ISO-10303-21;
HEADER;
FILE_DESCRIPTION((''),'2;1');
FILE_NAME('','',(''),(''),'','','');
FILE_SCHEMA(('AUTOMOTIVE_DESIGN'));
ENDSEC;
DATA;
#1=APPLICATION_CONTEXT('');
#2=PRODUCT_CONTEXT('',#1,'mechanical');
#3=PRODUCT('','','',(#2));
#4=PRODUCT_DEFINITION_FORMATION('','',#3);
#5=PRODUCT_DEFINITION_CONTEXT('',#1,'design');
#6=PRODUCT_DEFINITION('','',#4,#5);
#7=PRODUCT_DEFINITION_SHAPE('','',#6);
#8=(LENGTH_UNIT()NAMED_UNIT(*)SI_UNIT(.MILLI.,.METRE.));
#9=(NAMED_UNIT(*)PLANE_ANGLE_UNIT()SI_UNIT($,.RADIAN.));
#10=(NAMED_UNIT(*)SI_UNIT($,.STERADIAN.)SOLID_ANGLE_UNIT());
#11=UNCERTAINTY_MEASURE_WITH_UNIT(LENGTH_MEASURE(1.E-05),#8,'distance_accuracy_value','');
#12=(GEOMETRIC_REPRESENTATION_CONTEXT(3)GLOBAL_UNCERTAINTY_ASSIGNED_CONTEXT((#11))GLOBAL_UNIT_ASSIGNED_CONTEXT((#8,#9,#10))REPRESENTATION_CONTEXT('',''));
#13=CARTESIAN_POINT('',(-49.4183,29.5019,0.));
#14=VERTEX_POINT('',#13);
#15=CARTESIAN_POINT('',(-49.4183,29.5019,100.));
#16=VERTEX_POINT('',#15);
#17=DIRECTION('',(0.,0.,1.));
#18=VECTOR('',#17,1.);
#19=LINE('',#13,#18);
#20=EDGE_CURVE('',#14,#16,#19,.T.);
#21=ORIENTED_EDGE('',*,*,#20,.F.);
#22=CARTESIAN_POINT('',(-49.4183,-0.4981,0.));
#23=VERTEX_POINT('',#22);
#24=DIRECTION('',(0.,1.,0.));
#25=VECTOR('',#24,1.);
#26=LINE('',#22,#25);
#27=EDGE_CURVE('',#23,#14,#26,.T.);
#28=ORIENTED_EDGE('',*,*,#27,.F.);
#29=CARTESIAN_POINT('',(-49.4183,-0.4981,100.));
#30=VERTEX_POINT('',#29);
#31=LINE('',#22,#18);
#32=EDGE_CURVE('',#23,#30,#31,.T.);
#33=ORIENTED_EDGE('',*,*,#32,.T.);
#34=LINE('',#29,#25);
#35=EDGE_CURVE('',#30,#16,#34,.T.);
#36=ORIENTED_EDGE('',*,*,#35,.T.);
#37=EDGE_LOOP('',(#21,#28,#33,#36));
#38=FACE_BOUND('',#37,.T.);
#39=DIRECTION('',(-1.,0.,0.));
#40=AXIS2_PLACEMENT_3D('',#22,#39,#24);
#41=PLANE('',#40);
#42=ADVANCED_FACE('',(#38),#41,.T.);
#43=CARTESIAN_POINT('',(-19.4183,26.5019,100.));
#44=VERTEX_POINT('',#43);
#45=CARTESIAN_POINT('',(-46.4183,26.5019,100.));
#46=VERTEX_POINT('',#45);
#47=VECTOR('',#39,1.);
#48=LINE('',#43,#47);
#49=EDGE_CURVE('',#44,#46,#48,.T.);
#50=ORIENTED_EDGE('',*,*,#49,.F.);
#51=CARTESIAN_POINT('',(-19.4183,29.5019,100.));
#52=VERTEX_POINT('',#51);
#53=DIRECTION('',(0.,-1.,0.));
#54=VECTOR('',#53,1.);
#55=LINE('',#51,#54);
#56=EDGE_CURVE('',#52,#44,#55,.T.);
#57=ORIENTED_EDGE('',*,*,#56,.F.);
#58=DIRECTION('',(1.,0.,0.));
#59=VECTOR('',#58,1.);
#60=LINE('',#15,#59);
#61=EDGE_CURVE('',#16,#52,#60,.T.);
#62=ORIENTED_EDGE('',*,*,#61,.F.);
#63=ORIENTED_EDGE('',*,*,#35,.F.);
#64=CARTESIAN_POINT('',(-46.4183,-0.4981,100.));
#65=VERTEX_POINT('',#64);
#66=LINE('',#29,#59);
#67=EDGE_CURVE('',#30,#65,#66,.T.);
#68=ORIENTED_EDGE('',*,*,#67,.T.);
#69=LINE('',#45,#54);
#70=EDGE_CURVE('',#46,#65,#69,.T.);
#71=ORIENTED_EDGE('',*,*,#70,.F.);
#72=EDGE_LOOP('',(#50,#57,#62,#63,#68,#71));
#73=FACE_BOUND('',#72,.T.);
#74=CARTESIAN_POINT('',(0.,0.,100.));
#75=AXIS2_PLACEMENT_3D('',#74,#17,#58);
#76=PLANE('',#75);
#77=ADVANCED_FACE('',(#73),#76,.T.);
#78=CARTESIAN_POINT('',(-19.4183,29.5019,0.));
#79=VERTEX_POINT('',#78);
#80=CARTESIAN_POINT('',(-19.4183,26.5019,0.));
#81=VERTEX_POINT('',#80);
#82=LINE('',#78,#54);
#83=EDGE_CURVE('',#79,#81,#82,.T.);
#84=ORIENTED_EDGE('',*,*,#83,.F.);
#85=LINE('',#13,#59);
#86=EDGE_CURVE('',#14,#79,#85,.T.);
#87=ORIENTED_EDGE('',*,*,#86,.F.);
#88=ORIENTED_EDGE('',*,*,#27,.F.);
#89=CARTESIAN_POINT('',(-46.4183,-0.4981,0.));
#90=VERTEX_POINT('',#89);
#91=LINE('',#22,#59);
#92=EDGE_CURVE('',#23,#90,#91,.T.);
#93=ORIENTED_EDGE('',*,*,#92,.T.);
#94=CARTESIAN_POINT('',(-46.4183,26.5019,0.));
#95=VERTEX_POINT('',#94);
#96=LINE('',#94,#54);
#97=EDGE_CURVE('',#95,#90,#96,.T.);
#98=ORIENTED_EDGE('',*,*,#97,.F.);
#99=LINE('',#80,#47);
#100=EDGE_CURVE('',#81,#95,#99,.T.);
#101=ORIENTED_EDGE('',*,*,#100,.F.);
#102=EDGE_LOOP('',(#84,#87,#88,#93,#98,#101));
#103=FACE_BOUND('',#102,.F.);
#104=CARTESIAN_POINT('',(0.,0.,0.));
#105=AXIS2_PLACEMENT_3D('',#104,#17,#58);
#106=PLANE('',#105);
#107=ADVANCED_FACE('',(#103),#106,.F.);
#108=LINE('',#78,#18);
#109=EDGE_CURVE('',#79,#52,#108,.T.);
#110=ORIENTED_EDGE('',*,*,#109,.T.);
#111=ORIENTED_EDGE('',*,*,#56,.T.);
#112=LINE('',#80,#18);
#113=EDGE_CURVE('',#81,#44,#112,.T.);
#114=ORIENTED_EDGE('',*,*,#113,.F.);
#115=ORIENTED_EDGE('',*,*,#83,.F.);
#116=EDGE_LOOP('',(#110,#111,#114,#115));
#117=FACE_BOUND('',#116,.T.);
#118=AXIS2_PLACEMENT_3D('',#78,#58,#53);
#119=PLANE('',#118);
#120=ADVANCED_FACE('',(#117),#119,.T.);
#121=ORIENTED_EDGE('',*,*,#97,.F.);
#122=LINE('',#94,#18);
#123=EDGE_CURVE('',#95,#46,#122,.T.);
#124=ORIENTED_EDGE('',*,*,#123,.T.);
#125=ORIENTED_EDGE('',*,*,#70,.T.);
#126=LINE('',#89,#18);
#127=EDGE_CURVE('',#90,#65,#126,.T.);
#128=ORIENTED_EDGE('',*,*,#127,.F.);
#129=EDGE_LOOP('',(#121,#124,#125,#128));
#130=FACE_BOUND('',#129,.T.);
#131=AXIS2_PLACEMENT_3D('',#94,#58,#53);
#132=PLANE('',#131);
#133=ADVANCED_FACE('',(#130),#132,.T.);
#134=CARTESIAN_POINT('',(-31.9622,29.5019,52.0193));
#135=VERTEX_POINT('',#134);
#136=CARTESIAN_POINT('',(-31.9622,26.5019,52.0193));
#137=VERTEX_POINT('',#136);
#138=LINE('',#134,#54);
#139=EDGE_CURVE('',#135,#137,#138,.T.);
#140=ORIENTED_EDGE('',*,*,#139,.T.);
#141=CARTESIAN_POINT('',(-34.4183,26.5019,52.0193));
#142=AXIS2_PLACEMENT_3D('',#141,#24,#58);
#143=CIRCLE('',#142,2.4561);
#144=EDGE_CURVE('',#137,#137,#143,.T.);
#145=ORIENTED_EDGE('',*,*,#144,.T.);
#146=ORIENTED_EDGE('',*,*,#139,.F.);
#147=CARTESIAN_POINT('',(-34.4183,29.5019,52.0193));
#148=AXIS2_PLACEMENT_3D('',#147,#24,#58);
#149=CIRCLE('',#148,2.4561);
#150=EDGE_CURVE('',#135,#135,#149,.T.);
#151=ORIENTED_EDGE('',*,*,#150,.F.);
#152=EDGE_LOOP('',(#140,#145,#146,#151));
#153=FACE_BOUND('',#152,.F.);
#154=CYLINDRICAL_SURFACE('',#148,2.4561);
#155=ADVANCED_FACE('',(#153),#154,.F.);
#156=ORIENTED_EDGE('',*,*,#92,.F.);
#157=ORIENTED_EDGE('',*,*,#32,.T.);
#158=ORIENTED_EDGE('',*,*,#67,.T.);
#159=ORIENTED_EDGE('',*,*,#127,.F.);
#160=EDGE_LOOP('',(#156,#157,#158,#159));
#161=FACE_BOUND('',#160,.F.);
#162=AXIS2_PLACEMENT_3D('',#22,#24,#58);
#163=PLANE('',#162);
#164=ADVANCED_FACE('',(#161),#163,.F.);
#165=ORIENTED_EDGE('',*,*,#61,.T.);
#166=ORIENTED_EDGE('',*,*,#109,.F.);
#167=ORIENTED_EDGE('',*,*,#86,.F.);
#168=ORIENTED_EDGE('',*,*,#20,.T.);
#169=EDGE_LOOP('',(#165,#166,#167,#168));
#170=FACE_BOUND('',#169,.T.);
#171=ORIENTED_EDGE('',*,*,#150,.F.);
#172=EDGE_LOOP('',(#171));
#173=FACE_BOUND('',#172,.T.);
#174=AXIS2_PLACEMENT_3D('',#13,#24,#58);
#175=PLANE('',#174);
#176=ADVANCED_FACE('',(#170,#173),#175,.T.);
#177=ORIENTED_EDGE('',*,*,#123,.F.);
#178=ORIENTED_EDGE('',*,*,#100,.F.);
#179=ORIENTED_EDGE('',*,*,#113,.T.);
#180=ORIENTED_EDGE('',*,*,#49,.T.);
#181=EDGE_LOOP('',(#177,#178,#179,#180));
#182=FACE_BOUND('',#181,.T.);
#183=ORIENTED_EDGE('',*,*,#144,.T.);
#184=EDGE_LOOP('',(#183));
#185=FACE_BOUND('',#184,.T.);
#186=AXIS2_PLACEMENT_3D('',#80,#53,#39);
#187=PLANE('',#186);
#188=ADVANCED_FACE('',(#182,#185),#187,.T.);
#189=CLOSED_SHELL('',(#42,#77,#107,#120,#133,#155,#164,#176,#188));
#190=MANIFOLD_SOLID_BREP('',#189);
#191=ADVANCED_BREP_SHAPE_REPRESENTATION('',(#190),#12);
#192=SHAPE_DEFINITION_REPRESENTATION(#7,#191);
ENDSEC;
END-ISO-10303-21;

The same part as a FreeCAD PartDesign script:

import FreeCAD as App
import Part
import Sketcher
from FreeCAD import Vector
Q = App.Units.Quantity


def add_polygon(sketch, points):
    """Adds a closed chain of lines whose ends are joined by coincident constraints."""
    first, n = sketch.GeometryCount, len(points)
    for a, b in zip(points, points[1:] + points[:1]):
        sketch.addGeometry(Part.LineSegment(App.Vector(*a, 0), App.Vector(*b, 0)), False)
    for i in range(n):
        sketch.addConstraint(Sketcher.Constraint("Coincident", first + i, 2, first + (i + 1) % n, 1))

doc = App.newDocument("Part")
body = doc.addObject("PartDesign::Body", "Body")

# Sketch on XY plane
sketch1 = body.newObject("Sketcher::SketchObject", "Sketch")
sketch1.AttachmentSupport = (doc.getObject("XY_Plane"), [""])
sketch1.MapMode = "FlatFace"
add_polygon(sketch1, [(-49.4, 29.5), (-49.4, -0.5), (-46.4, -0.5), (-46.4, 26.5), (-19.4, 26.5), (-19.4, 29.5)])  # lines 0-5
sketch1.addConstraint(Sketcher.Constraint("Vertical", 0))
sketch1.addConstraint(Sketcher.Constraint("Horizontal", 1))
sketch1.addConstraint(Sketcher.Constraint("Vertical", 2))
sketch1.addConstraint(Sketcher.Constraint("Horizontal", 3))
sketch1.addConstraint(Sketcher.Constraint("Vertical", 4))
sketch1.addConstraint(Sketcher.Constraint("Horizontal", 5))
sketch1.addConstraint(Sketcher.Constraint("Equal", 5, 0))
sketch1.addConstraint(Sketcher.Constraint("Equal", 3, 2))
sketch1.addConstraint(Sketcher.Constraint("DistanceX", 3, 1, 3, 2, Q("1.063 in")))
sketch1.addConstraint(Sketcher.Constraint("DistanceX", 1, 1, 1, 2, Q("0.1181 in")))
sketch1.addConstraint(Sketcher.Constraint("DistanceX", 0, 2, -1, 1, Q("1.9456 in")))
sketch1.addConstraint(Sketcher.Constraint("DistanceY", 0, 2, -1, 1, Q("0.0196 in")))
pad1 = body.newObject("PartDesign::Pad", "Pad")
pad1.Profile = sketch1
pad1.Length = Q("3.9370079 in")

# Sketch on XZ plane
sketch2 = body.newObject("Sketcher::SketchObject", "Sketch001")
sketch2.AttachmentSupport = (doc.getObject("XZ_Plane"), [""])
sketch2.MapMode = "FlatFace"
sketch2.AttachmentOffset = App.Placement(Vector(0, 0, -1.1614921 * 25.4), App.Rotation())
sketch2.addGeometry(Part.Circle(Vector(-34.4, 52, 0), Vector(0, 0, 1), 2.5), False)
sketch2.addConstraint(Sketcher.Constraint("Diameter", 0, Q("0.1934 in")))
sketch2.addConstraint(Sketcher.Constraint("DistanceY", -1, 1, 0, 3, Q("2.048 in")))
sketch2.addConstraint(Sketcher.Constraint("DistanceX", 0, 3, -1, 1, Q("34.4183 mm")))
pocket1 = body.newObject("PartDesign::Pocket", "Pocket")
pocket1.Profile = sketch2
pocket1.Type = "ThroughAll"
pocket1.Reversed = True

doc.recompute()
